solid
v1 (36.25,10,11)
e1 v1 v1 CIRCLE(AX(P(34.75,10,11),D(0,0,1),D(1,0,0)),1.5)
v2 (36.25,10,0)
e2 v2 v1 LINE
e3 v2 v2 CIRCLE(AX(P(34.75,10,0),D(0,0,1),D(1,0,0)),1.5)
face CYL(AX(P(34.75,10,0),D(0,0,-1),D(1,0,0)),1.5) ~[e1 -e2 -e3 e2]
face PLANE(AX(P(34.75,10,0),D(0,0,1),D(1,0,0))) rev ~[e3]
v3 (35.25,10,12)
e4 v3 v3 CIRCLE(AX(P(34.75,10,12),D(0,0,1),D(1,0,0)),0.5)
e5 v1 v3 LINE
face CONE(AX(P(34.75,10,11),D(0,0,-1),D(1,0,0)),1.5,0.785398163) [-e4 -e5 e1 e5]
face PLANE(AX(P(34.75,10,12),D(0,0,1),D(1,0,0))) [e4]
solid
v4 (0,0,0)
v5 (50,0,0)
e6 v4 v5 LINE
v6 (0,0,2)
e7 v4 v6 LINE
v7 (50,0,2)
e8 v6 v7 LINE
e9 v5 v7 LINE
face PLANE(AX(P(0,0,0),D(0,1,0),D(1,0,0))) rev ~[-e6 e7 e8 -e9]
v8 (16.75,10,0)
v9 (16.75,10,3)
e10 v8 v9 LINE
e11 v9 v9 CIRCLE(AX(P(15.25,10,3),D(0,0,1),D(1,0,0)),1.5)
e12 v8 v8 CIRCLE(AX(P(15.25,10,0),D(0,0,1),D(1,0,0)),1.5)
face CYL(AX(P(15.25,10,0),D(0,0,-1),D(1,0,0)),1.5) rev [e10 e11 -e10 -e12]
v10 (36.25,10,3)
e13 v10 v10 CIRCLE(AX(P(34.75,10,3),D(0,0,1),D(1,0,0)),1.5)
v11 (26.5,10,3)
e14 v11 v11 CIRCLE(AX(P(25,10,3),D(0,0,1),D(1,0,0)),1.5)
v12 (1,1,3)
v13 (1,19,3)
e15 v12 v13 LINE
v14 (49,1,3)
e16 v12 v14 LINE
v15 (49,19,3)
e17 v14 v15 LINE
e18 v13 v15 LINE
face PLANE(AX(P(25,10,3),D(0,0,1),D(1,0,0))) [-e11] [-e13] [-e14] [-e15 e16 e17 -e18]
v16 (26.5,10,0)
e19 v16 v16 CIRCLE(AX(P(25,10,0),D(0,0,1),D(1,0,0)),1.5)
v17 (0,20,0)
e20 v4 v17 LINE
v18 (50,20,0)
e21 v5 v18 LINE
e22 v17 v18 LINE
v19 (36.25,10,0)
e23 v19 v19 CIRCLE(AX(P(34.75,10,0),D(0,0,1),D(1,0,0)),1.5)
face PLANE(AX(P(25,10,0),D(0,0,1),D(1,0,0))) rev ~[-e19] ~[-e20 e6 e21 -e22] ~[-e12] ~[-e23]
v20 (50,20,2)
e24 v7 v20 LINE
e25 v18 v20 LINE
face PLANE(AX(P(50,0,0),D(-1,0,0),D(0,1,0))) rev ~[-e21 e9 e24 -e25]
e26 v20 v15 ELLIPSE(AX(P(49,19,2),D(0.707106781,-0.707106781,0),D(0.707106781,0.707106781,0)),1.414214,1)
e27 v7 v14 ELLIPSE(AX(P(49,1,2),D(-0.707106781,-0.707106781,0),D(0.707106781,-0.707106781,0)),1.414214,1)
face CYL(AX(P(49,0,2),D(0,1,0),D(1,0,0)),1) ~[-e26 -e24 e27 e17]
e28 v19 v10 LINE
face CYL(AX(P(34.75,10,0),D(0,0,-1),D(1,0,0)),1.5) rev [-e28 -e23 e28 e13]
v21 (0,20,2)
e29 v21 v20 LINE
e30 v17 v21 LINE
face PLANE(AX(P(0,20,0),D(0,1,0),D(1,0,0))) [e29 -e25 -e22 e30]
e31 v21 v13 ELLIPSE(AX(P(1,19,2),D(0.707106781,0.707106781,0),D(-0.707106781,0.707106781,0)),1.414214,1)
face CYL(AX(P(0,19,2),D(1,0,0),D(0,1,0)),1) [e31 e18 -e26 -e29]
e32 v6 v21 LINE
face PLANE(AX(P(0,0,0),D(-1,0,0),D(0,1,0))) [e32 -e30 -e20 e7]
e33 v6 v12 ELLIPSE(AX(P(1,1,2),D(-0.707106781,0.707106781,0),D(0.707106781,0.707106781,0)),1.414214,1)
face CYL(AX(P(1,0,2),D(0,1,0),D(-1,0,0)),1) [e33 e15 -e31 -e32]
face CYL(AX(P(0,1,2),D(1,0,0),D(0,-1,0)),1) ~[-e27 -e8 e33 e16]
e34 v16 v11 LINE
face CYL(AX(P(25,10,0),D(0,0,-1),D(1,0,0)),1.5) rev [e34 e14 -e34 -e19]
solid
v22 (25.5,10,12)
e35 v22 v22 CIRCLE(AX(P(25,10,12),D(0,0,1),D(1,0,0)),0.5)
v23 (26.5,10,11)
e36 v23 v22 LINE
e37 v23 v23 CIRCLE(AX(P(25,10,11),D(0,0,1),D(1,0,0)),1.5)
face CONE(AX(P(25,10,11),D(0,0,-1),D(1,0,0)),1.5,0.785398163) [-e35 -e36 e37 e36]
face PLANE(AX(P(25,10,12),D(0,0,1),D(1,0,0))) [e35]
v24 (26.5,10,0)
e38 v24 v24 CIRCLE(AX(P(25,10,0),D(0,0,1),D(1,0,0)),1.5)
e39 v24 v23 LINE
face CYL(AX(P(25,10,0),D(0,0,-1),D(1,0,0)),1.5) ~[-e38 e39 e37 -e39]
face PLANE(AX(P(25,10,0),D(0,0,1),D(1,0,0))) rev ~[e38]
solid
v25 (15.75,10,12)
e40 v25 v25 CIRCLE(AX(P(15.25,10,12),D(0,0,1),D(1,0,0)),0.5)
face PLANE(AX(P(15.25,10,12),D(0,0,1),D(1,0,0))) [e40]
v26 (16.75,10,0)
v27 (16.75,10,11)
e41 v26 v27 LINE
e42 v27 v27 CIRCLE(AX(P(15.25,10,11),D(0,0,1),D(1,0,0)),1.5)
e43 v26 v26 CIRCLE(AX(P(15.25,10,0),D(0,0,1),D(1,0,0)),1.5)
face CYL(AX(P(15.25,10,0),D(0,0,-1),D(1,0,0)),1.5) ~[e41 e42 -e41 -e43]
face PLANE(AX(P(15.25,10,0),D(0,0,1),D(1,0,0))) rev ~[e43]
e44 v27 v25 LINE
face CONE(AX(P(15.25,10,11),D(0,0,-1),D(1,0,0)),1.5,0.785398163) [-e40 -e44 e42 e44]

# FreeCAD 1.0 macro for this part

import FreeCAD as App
import Part
import Sketcher
from FreeCAD import Vector
Q = App.Units.Quantity


def edges_at(feature, points):
    """Names of the edges that pass closest to the given points."""
    edges = feature.Shape.Edges
    near = lambda p: min(range(len(edges)), key=lambda i: edges[i].distToShape(Part.Vertex(*p))[0])
    return sorted({f"Edge{near(p) + 1}" for p in points})

doc = App.newDocument("Part")
body = doc.addObject("PartDesign::Body", "Body")
body.AllowCompound = True

sketch1 = doc.addObject("Sketcher::SketchObject", "Sketch")
body.addObject(sketch1)
sketch1.AttachmentSupport = (doc.XY_Plane, [""])
sketch1.MapMode = "FlatFace"
sketch1.addGeometry([
    Part.Circle(Vector(34.8, 10, 0), Vector(0, 0, 1), 1.5),
    Part.Circle(Vector(25, 10, 0), Vector(0, 0, 1), 1.5),
    Part.Circle(Vector(15.2, 10, 0), Vector(0, 0, 1), 1.5),
], False)
sketch1.addConstraint([
    Sketcher.Constraint("Equal", 0, 1),
    Sketcher.Constraint("Equal", 1, 2),
    Sketcher.Constraint("Horizontal", 0, 3, 1, 3),
    Sketcher.Constraint("Horizontal", 1, 3, 2, 3),
    Sketcher.Constraint("Diameter", 0, Q("3 mm")),
    Sketcher.Constraint("DistanceY", -1, 1, 0, 3, Q("10 mm")),
    Sketcher.Constraint("DistanceX", -1, 1, 1, 3, Q("25 mm")),
    Sketcher.Constraint("DistanceX", 2, 3, 0, 3, Q("19.5 mm")),
    Sketcher.Constraint("DistanceX", -1, 1, 0, 3, Q("34.75 mm")),
])
pad1 = doc.addObject("PartDesign::Pad", "Pad")
body.addObject(pad1)
pad1.Profile = sketch1
pad1.Length = 12
doc.recompute()

chamfer = doc.addObject("PartDesign::Chamfer", "Chamfer")
body.addObject(chamfer)
chamfer.Base = (pad1, edges_at(pad1, [(33.25, 10, 12), (23.5, 10, 12), (13.75, 10, 12)]))
chamfer.Size = 1
body2 = doc.addObject("PartDesign::Body", "Body001")

sketch2 = doc.addObject("Sketcher::SketchObject", "Sketch001")
body2.addObject(sketch2)
sketch2.AttachmentSupport = (doc.getObject("XY_Plane001"), [""])
sketch2.MapMode = "FlatFace"
sketch2.addGeometry([
    Part.LineSegment(Vector(0, 20, 0), Vector(0, 0, 0)),
    Part.LineSegment(Vector(0, 0, 0), Vector(50, 0, 0)),
    Part.LineSegment(Vector(50, 0, 0), Vector(50, 20, 0)),
    Part.LineSegment(Vector(50, 20, 0), Vector(0, 20, 0)),
    Part.Circle(Vector(15.2, 10, 0), Vector(0, 0, 1), 1.5),
    Part.Circle(Vector(25, 10, 0), Vector(0, 0, 1), 1.5),
    Part.Circle(Vector(34.8, 10, 0), Vector(0, 0, 1), 1.5),
], False)
sketch2.addConstraint([
    Sketcher.Constraint("Coincident", 0, 2, 1, 1),
    Sketcher.Constraint("Coincident", 1, 2, 2, 1),
    Sketcher.Constraint("Coincident", 2, 2, 3, 1),
    Sketcher.Constraint("Coincident", 3, 2, 0, 1),
    Sketcher.Constraint("Vertical", 0),
    Sketcher.Constraint("Horizontal", 1),
    Sketcher.Constraint("Vertical", 2),
    Sketcher.Constraint("Horizontal", 3),
    Sketcher.Constraint("Coincident", 0, 2, -1, 1),
    Sketcher.Constraint("Equal", 4, 5),
    Sketcher.Constraint("Equal", 5, 6),
    Sketcher.Constraint("Horizontal", 4, 3, 5, 3),
    Sketcher.Constraint("Horizontal", 5, 3, 6, 3),
    Sketcher.Constraint("Diameter", 4, Q("3 mm")),
    Sketcher.Constraint("DistanceX", 1, 1, 1, 2, Q("50 mm")),
    Sketcher.Constraint("DistanceY", 0, 2, 0, 1, Q("20 mm")),
    Sketcher.Constraint("DistanceY", -1, 1, 4, 3, Q("10 mm")),
    Sketcher.Constraint("DistanceX", -1, 1, 5, 3, Q("25 mm")),
    Sketcher.Constraint("DistanceX", 4, 3, 6, 3, Q("19.5 mm")),
    Sketcher.Constraint("DistanceX", -1, 1, 4, 3, Q("15.25 mm")),
])
pad2 = doc.addObject("PartDesign::Pad", "Pad001")
body2.addObject(pad2)
pad2.Profile = sketch2
pad2.Length = 3
doc.recompute()

fillet = doc.addObject("PartDesign::Fillet", "Fillet")
body2.addObject(fillet)
fillet.Base = (pad2, edges_at(pad2, [
    (25, 0, 3),
    (0, 10, 3),
    (25, 20, 3),
    (50, 10, 3),
]))
fillet.Radius = 1

doc.recompute()
